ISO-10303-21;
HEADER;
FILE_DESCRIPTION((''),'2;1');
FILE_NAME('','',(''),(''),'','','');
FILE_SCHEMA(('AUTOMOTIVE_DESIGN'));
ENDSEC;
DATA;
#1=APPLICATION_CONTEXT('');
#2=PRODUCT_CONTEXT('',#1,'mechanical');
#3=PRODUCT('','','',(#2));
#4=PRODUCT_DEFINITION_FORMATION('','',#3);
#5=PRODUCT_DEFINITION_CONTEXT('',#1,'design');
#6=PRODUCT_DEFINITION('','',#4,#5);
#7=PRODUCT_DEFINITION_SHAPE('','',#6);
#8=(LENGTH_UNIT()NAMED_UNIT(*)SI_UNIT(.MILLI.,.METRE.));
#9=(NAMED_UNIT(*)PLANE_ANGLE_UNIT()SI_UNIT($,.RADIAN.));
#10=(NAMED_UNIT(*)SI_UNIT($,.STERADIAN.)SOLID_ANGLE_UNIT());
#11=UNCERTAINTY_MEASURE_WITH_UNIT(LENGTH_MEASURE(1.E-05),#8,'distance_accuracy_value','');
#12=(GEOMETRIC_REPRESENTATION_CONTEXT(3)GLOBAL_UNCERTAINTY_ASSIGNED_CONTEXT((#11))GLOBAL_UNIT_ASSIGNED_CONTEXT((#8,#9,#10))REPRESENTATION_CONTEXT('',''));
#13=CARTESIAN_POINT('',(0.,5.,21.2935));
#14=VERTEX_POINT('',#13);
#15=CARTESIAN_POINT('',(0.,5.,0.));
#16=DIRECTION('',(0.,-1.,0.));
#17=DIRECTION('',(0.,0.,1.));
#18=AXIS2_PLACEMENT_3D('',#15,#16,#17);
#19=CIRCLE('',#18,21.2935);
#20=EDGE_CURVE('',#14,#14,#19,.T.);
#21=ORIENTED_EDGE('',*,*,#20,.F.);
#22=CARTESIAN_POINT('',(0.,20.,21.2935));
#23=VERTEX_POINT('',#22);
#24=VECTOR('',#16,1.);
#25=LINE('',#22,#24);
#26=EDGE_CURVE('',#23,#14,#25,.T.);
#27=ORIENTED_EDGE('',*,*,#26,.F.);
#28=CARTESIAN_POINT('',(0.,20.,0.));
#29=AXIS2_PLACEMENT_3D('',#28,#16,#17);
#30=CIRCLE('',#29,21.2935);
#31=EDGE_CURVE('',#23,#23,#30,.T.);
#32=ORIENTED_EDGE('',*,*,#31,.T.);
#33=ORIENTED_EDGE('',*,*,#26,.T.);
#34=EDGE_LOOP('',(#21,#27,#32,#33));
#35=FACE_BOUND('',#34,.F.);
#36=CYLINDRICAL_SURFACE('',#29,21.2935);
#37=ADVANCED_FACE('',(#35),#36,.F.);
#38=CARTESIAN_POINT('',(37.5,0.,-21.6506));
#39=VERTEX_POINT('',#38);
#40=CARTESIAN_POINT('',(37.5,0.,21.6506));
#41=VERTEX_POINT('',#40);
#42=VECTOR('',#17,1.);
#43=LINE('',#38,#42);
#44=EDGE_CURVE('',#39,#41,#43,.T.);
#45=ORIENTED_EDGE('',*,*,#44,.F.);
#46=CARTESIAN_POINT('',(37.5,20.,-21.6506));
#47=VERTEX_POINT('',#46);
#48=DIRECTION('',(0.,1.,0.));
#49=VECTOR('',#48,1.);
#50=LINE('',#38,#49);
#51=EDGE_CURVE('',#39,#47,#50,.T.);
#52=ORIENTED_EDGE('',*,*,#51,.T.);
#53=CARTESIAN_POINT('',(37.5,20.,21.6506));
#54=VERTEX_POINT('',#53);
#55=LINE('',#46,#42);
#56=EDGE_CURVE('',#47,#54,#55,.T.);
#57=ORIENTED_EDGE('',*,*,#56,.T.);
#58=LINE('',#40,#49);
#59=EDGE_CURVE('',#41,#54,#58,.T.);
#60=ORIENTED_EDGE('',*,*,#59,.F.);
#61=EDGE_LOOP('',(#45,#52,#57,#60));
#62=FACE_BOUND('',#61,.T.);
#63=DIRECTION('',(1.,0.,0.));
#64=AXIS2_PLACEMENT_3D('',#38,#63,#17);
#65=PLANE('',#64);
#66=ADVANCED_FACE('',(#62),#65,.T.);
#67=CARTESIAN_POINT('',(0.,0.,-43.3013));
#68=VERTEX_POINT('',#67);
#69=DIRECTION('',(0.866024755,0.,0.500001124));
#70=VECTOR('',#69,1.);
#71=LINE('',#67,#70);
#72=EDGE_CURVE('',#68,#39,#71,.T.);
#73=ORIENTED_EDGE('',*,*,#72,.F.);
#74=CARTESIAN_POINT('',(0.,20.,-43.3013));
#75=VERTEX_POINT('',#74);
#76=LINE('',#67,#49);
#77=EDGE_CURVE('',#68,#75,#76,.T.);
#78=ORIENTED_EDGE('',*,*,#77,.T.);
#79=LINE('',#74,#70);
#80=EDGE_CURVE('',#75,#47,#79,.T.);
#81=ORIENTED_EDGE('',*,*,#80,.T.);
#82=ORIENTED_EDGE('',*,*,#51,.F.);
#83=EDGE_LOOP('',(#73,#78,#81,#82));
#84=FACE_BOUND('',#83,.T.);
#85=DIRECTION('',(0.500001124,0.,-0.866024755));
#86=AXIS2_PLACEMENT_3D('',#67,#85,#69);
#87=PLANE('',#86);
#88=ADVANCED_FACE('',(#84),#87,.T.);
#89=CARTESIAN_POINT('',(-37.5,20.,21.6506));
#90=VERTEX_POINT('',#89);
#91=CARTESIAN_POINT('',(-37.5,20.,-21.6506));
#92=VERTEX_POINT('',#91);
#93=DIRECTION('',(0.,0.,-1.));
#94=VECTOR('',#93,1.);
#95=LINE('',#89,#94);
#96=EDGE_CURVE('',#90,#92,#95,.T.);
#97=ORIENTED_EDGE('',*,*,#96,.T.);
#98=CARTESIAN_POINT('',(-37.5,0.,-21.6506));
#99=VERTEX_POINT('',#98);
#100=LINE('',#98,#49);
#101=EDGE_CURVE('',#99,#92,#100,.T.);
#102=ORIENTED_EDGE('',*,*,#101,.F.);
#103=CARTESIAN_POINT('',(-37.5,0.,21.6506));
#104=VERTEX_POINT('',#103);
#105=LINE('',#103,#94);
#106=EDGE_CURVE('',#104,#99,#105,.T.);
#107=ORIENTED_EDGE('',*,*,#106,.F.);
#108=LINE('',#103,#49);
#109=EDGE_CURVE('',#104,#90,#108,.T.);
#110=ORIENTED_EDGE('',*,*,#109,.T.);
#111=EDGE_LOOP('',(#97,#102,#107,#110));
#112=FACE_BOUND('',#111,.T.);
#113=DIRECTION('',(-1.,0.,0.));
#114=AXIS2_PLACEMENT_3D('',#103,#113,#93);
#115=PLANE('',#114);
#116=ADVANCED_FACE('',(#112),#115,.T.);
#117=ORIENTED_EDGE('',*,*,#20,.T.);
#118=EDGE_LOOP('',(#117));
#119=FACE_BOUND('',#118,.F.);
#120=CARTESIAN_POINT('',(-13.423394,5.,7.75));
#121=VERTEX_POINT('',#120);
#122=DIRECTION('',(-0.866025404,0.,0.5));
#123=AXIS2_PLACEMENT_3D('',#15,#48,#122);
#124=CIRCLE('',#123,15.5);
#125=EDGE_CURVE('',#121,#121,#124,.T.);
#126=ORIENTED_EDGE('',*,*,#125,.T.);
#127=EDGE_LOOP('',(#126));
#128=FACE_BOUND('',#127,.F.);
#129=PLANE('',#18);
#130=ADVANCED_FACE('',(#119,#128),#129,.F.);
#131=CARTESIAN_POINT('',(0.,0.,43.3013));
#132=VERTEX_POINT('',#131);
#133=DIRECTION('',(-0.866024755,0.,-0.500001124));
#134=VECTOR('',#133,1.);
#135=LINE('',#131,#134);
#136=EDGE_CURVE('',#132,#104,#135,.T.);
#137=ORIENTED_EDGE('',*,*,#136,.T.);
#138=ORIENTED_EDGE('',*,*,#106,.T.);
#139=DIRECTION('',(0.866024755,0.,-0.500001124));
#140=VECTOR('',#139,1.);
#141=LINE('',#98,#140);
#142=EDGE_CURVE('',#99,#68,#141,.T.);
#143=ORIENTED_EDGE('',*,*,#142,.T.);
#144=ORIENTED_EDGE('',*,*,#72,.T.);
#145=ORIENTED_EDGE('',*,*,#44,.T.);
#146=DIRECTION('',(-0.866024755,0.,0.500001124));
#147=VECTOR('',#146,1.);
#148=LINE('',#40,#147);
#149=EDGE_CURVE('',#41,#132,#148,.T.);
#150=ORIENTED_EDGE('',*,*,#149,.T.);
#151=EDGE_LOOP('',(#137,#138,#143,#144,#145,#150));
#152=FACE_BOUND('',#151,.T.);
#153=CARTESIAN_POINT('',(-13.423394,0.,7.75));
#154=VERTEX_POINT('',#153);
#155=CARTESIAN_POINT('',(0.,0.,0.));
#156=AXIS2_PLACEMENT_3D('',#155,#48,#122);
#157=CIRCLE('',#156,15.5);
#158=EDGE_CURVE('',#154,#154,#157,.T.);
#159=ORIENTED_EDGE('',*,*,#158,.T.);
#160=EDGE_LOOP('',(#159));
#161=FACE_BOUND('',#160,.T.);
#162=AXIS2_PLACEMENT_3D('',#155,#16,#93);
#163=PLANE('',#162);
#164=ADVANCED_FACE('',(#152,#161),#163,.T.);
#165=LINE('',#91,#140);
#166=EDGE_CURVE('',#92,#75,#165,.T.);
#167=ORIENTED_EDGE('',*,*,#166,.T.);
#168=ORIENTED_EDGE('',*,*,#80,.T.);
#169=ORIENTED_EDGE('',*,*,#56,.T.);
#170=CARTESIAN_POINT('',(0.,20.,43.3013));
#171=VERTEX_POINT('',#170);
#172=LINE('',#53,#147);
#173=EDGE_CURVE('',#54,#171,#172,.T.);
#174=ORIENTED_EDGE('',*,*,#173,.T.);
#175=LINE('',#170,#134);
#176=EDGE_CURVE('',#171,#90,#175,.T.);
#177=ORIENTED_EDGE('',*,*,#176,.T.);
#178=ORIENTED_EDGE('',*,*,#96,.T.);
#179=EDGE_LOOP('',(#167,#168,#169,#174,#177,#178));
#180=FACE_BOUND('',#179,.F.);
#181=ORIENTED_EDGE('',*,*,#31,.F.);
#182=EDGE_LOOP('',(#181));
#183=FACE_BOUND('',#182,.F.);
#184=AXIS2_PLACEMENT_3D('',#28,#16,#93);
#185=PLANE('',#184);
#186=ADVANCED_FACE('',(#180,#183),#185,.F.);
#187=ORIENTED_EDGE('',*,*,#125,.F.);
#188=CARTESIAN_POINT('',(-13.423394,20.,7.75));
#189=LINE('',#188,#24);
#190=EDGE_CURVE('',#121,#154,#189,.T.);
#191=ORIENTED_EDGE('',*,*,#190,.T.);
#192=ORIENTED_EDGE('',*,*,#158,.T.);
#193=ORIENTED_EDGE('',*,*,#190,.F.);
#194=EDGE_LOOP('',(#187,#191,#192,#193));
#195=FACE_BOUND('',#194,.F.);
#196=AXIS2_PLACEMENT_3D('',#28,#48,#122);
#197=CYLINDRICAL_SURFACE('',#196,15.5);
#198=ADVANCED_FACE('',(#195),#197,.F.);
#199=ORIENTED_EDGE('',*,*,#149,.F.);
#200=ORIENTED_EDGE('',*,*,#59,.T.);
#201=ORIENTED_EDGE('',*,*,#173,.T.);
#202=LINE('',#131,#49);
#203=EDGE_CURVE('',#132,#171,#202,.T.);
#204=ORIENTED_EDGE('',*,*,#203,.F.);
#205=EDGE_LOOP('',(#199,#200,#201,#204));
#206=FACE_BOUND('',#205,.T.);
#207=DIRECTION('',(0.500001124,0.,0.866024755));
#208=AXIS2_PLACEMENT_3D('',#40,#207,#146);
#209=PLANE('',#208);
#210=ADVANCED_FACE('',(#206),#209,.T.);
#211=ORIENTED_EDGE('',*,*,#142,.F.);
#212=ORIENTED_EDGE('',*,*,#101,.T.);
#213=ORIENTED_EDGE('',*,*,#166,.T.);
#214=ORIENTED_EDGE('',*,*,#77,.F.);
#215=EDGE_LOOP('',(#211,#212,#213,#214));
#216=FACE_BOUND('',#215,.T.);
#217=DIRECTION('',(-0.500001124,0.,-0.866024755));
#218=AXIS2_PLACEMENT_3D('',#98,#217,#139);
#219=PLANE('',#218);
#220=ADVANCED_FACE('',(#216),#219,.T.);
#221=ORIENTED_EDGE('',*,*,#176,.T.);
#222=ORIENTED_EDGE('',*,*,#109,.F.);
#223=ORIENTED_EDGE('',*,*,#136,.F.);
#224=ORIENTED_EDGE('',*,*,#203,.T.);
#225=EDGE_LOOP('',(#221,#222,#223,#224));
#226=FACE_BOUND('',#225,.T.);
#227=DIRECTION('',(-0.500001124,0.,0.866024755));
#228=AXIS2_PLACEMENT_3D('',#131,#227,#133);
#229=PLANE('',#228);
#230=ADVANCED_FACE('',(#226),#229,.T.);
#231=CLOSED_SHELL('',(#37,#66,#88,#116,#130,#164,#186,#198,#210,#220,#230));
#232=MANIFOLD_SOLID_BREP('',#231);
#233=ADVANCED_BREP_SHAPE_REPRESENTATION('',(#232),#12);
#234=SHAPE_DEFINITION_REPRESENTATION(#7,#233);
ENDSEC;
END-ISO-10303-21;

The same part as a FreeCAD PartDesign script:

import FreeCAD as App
import Part
import Sketcher
Q = App.Units.Quantity

doc = App.newDocument("Part")
body = doc.addObject("PartDesign::Body", "Body")

# Sketch on XZ plane
sketch1 = body.newObject("Sketcher::SketchObject", "Sketch")
sketch1.AttachmentSupport = (doc.getObject("XZ_Plane"), [""])
sketch1.MapMode = "FlatFace"
sketch1.addGeometry([
    Part.LineSegment(App.Vector(38, -22, 0), App.Vector(38, 22, 0)),  # 0
    Part.LineSegment(App.Vector(38, 22, 0), App.Vector(0, 43, 0)),  # 1
    Part.LineSegment(App.Vector(0, 43, 0), App.Vector(-38, 22, 0)),  # 2
    Part.LineSegment(App.Vector(-38, 22, 0), App.Vector(-38, -22, 0)),  # 3
    Part.LineSegment(App.Vector(-38, -22, 0), App.Vector(0, -43, 0)),  # 4
    Part.LineSegment(App.Vector(0, -43, 0), App.Vector(38, -22, 0)),  # 5
], False)
sketch1.addConstraint([
    Sketcher.Constraint("Coincident", 0, 2, 1, 1),
    Sketcher.Constraint("Coincident", 1, 2, 2, 1),
    Sketcher.Constraint("Coincident", 2, 2, 3, 1),
    Sketcher.Constraint("Coincident", 3, 2, 4, 1),
    Sketcher.Constraint("Coincident", 4, 2, 5, 1),
    Sketcher.Constraint("Coincident", 5, 2, 0, 1),
    Sketcher.Constraint("Vertical", 0),
    Sketcher.Constraint("Vertical", 3),
    Sketcher.Constraint("Symmetric", 0, 2, 3, 2, -1, 1),
    Sketcher.Constraint("Symmetric", 1, 2, 4, 2, -1, 1),
    Sketcher.Constraint("PointOnObject", 1, 2, -2),
    Sketcher.Constraint("Parallel", 2, 5),
    Sketcher.Constraint("Horizontal", 0, 2, 2, 2),
    Sketcher.Constraint("DistanceX", -1, 1, 0, 2, 37.5),
    Sketcher.Constraint("Angle", 1, Q("150 deg")),
    Sketcher.Constraint("DistanceY", 0, 1, 0, 2, 43.3012),
])
pad1 = body.newObject("PartDesign::Pad", "Pad")
pad1.Profile = sketch1
pad1.Length = 20
pad1.Reversed = True

# Sketch on XZ plane
sketch2 = body.newObject("Sketcher::SketchObject", "Sketch001")
sketch2.AttachmentSupport = (doc.getObject("XZ_Plane"), [""])
sketch2.MapMode = "FlatFace"
sketch2.AttachmentOffset = App.Placement(App.Vector(0, 0, -20), App.Rotation())
sketch2.addGeometry(Part.Circle(App.Vector(0, 0, 0), App.Vector(0, 0, 1), 16), False)
sketch2.addConstraint([
    Sketcher.Constraint("Coincident", 0, 3, -1, 1),
    Sketcher.Constraint("Diameter", 0, 31.0),
])
pocket1 = body.newObject("PartDesign::Pocket", "Pocket")
pocket1.Profile = sketch2
pocket1.Length = 146.9275
pocket1.Reversed = True

# Sketch on XZ plane
sketch3 = body.newObject("Sketcher::SketchObject", "Sketch002")
sketch3.AttachmentSupport = (doc.getObject("XZ_Plane"), [""])
sketch3.MapMode = "FlatFace"
sketch3.AttachmentOffset = App.Placement(App.Vector(0, 0, -20), App.Rotation())
sketch3.addGeometry(Part.Circle(App.Vector(0, 0, 0), App.Vector(0, 0, 1), 21), False)
sketch3.addConstraint([
    Sketcher.Constraint("Coincident", 0, 3, -1, 1),
    Sketcher.Constraint("Diameter", 0, 42.587),
])
doc.recompute()
hole = body.newObject("PartDesign::Hole", "Hole")
hole.Profile = sketch3
hole.ThreadType = "None"
hole.Diameter = 42.587
hole.DepthType = "Dimension"
hole.Depth = 15
hole.DrillPoint = "Flat"
hole.Reversed = True

doc.recompute()
